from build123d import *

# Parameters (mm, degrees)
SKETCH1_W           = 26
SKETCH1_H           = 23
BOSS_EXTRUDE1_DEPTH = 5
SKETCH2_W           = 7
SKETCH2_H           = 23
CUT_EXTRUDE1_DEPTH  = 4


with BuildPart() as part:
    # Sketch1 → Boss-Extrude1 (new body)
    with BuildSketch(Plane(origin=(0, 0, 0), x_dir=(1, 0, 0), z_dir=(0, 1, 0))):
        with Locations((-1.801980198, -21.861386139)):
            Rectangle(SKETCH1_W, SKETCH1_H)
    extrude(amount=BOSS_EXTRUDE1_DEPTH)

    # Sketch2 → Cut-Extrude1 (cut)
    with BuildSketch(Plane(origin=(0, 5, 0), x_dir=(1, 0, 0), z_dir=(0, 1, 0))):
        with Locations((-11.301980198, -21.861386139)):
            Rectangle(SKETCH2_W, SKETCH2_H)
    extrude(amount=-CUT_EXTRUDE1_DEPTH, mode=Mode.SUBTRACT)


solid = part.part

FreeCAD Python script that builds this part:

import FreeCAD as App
import Part
import Sketcher
from FreeCAD import Vector

doc = App.newDocument("Part")
params = doc.addObject("Spreadsheet::Sheet", "Params")
for row, (alias, value) in enumerate([
    ("sketch1_width", "26 mm"),
    ("sketch1_height", "23 mm"),
    ("pad1_length", "5 mm"),
    ("sketch2_width", "7 mm"),
    ("sketch2_height", "23 mm"),
    ("pocket1_length", "4 mm"),
], start=1):
    params.set(f"A{row}", alias)
    params.set(f"B{row}", "=" + value)
    params.setAlias(f"B{row}", alias)

body = doc.addObject("PartDesign::Body", "Body")

# Sketch on XZ plane
sketch1 = body.newObject("Sketcher::SketchObject", "Sketch")
sketch1.AttachmentSupport = (doc.getObject("XZ_Plane"), [""])
sketch1.MapMode = "FlatFace"
sketch1.addGeometry(Part.LineSegment(Vector(-15, 10, 0), Vector(-15, 33, 0)), False)
sketch1.addGeometry(Part.LineSegment(Vector(-15, 33, 0), Vector(11, 33, 0)), False)
sketch1.addGeometry(Part.LineSegment(Vector(11, 33, 0), Vector(11, 10, 0)), False)
sketch1.addGeometry(Part.LineSegment(Vector(11, 10, 0), Vector(-15, 10, 0)), False)
sketch1.addConstraint(Sketcher.Constraint("Coincident", 0, 2, 1, 1))
sketch1.addConstraint(Sketcher.Constraint("Coincident", 1, 2, 2, 1))
sketch1.addConstraint(Sketcher.Constraint("Coincident", 2, 2, 3, 1))
sketch1.addConstraint(Sketcher.Constraint("Coincident", 3, 2, 0, 1))
sketch1.addConstraint(Sketcher.Constraint("Vertical", 0))
sketch1.addConstraint(Sketcher.Constraint("Horizontal", 1))
sketch1.addConstraint(Sketcher.Constraint("Vertical", 2))
sketch1.addConstraint(Sketcher.Constraint("Horizontal", 3))
sketch1.addConstraint(Sketcher.Constraint("DistanceX", 1, 1, 1, 2, 26.0))
sketch1.addConstraint(Sketcher.Constraint("DistanceY", 0, 1, 0, 2, 23.0))
sketch1.addConstraint(Sketcher.Constraint("DistanceX", 0, 2, -1, 1, 14.80198))
sketch1.addConstraint(Sketcher.Constraint("DistanceY", -1, 1, 0, 2, 33.361386))
sketch1.setExpression("Constraints[8]", "Params.sketch1_width")
sketch1.setExpression("Constraints[9]", "Params.sketch1_height")
pad1 = body.newObject("PartDesign::Pad", "Pad")
pad1.Profile = sketch1
pad1.setExpression("Length", "Params.pad1_length")
pad1.Reversed = True

# Sketch on XZ plane
sketch2 = body.newObject("Sketcher::SketchObject", "Sketch001")
sketch2.AttachmentSupport = (doc.getObject("XZ_Plane"), [""])
sketch2.MapMode = "FlatFace"
sketch2.AttachmentOffset = App.Placement(Vector(0, 0, -5), App.Rotation())
sketch2.addGeometry(Part.LineSegment(Vector(-15, 10, 0), Vector(-15, 33, 0)), False)
sketch2.addGeometry(Part.LineSegment(Vector(-15, 33, 0), Vector(-8, 33, 0)), False)
sketch2.addGeometry(Part.LineSegment(Vector(-8, 33, 0), Vector(-8, 10, 0)), False)
sketch2.addGeometry(Part.LineSegment(Vector(-8, 10, 0), Vector(-15, 10, 0)), False)
sketch2.addConstraint(Sketcher.Constraint("Coincident", 0, 2, 1, 1))
sketch2.addConstraint(Sketcher.Constraint("Coincident", 1, 2, 2, 1))
sketch2.addConstraint(Sketcher.Constraint("Coincident", 2, 2, 3, 1))
sketch2.addConstraint(Sketcher.Constraint("Coincident", 3, 2, 0, 1))
sketch2.addConstraint(Sketcher.Constraint("Vertical", 0))
sketch2.addConstraint(Sketcher.Constraint("Horizontal", 1))
sketch2.addConstraint(Sketcher.Constraint("Vertical", 2))
sketch2.addConstraint(Sketcher.Constraint("Horizontal", 3))
sketch2.addConstraint(Sketcher.Constraint("DistanceX", 1, 1, 1, 2, 7.0))
sketch2.addConstraint(Sketcher.Constraint("DistanceY", 0, 1, 0, 2, 23.0))
sketch2.addConstraint(Sketcher.Constraint("DistanceX", 0, 2, -1, 1, 14.80198))
sketch2.addConstraint(Sketcher.Constraint("DistanceY", -1, 1, 0, 2, 33.361386))
sketch2.setExpression("Constraints[8]", "Params.sketch2_width")
sketch2.setExpression("Constraints[9]", "Params.sketch2_height")
pocket1 = body.newObject("PartDesign::Pocket", "Pocket")
pocket1.Profile = sketch2
pocket1.setExpression("Length", "Params.pocket1_length")
pocket1.Reversed = True

doc.recompute()
